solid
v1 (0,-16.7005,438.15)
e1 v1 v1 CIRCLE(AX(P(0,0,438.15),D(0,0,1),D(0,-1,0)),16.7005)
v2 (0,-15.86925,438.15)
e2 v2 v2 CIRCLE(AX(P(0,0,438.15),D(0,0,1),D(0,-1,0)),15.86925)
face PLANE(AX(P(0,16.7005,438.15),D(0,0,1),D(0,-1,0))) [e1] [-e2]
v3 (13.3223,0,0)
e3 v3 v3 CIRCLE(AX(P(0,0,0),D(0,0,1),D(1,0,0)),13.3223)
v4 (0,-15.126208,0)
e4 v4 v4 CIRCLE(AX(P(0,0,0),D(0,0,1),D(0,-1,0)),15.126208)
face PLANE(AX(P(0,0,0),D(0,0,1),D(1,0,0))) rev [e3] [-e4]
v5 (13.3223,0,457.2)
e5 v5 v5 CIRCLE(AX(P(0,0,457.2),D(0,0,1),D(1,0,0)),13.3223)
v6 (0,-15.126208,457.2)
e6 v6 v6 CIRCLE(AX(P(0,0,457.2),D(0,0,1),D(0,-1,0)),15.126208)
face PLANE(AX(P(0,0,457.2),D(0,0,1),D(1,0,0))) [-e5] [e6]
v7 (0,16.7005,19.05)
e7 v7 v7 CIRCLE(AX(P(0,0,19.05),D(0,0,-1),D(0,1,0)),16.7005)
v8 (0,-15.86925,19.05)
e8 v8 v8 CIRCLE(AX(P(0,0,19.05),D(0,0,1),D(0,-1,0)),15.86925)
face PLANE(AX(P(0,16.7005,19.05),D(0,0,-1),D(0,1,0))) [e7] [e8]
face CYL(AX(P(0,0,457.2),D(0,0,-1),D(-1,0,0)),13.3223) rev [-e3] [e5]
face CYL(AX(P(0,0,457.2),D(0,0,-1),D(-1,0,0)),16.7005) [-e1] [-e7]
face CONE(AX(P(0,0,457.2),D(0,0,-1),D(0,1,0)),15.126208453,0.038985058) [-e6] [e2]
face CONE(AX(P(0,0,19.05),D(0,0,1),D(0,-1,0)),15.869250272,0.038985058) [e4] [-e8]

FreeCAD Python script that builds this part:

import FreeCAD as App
import Part
import Sketcher

V = App.Vector
Q = App.Units.Quantity


def add_polygon(sketch, points):
    """Adds a closed chain of lines whose ends are joined by coincident constraints."""
    first, n = sketch.GeometryCount, len(points)
    for a, b in zip(points, points[1:] + points[:1]):
        sketch.addGeometry(Part.LineSegment(App.Vector(*a, 0), App.Vector(*b, 0)), False)
    for i in range(n):
        sketch.addConstraint(Sketcher.Constraint("Coincident", first + i, 2, first + (i + 1) % n, 1))

doc = App.newDocument("Part")
body = doc.addObject("PartDesign::Body", "Body")

# Sketch on XY plane
sketch1 = body.newObject("Sketcher::SketchObject", "Sketch")
sketch1.AttachmentSupport = (doc.getObject("XY_Plane"), [""])
sketch1.MapMode = "FlatFace"
sketch1.addGeometry(Part.Circle(V(0, 0, 0), V(0, 0, 1), 16.7005), False)
sketch1.addGeometry(Part.Circle(V(0, 0, 0), V(0, 0, 1), 13.3223), False)
sketch1.addConstraint(Sketcher.Constraint("Coincident", 0, 3, -1, 1))
sketch1.addConstraint(Sketcher.Constraint("Coincident", 1, 3, -1, 1))
sketch1.addConstraint(Sketcher.Constraint("Diameter", 0, Q("1.315 in")))
sketch1.addConstraint(Sketcher.Constraint("Diameter", 1, Q("1.049 in")))
pad1 = body.newObject("PartDesign::Pad", "Pad")
pad1.Profile = sketch1
pad1.Length = Q("18 in")

# Sketch on YZ plane
sketch2 = body.newObject("Sketcher::SketchObject", "Sketch001")
sketch2.AttachmentSupport = (doc.getObject("YZ_Plane"), [""])
sketch2.MapMode = "FlatFace"
add_polygon(sketch2, [(21.813585, 0), (21.813585, 19.05), (15.86925, 19.05), (15.126208, 0)])  # lines 0-3
add_polygon(sketch2, [(21.813585, 457.2), (15.126208, 457.2), (15.86925, 438.15), (21.813585, 438.15)])  # lines 4-7
sketch2.addConstraint(Sketcher.Constraint("Vertical", 0))
sketch2.addConstraint(Sketcher.Constraint("Horizontal", 1))
sketch2.addConstraint(Sketcher.Constraint("Horizontal", 3))
sketch2.addConstraint(Sketcher.Constraint("Horizontal", 4))
sketch2.addConstraint(Sketcher.Constraint("Horizontal", 6))
sketch2.addConstraint(Sketcher.Constraint("Vertical", 7))
sketch2.addConstraint(Sketcher.Constraint("PointOnObject", 2, 2, -1))
sketch2.addConstraint(Sketcher.Constraint("Vertical", 2, 2, 4, 2))
sketch2.addConstraint(Sketcher.Constraint("Vertical", 1, 2, 5, 2))
sketch2.addConstraint(Sketcher.Constraint("Vertical", 3, 2, 6, 2))
sketch2.addConstraint(Sketcher.Constraint("Equal", 0, 7))
sketch2.addConstraint(Sketcher.Constraint("DistanceY", -1, 1, 4, 2, Q("18 in")))
sketch2.addConstraint(Sketcher.Constraint("DistanceY", 0, 1, 0, 2, Q("0.75 in")))
sketch2.addConstraint(Sketcher.Constraint("DistanceX", 1, 2, 1, 1, Q("5.944335 mm")))
sketch2.addConstraint(Sketcher.Constraint("DistanceX", 3, 1, 3, 2, Q("6.687376 mm")))
sketch2.addConstraint(Sketcher.Constraint("DistanceX", -1, 1, 1, 2, Q("15.86925 mm")))
groove = body.newObject("PartDesign::Groove", "Groove")
groove.Profile = sketch2
groove.ReferenceAxis = (sketch2, ["V_Axis"])
groove.Angle = 360

doc.recompute()
